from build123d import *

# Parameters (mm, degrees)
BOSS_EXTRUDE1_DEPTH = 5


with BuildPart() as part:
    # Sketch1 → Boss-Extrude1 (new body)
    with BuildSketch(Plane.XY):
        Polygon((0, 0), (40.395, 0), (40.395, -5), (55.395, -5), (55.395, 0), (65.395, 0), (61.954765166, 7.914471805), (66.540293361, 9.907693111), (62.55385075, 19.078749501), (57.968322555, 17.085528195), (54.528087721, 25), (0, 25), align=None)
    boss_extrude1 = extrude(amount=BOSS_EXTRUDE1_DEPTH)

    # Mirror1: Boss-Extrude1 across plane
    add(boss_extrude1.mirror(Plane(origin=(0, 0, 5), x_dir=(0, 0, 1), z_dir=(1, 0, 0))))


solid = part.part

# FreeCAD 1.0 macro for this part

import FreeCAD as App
import Part
import Sketcher

doc = App.newDocument("Part")
body = doc.addObject("PartDesign::Body", "Body")

sketch1 = body.newObject("Sketcher::SketchObject", "Sketch")
sketch1.AttachmentSupport = (doc.getObject("XY_Plane"), [""])
sketch1.MapMode = "FlatFace"
sketch1.addGeometry([
    Part.LineSegment(App.Vector(0, 0, 0), App.Vector(40, 0, 0)),
    Part.LineSegment(App.Vector(40, 0, 0), App.Vector(40, -5, 0)),
    Part.LineSegment(App.Vector(40, -5, 0), App.Vector(55, -5, 0)),
    Part.LineSegment(App.Vector(55, -5, 0), App.Vector(55, 0, 0)),
    Part.LineSegment(App.Vector(55, 0, 0), App.Vector(65, 0, 0)),
    Part.LineSegment(App.Vector(65, 0, 0), App.Vector(62, 8, 0)),
    Part.LineSegment(App.Vector(62, 8, 0), App.Vector(67, 10, 0)),
    Part.LineSegment(App.Vector(67, 10, 0), App.Vector(63, 19, 0)),
    Part.LineSegment(App.Vector(63, 19, 0), App.Vector(58, 17, 0)),
    Part.LineSegment(App.Vector(58, 17, 0), App.Vector(55, 25, 0)),
    Part.LineSegment(App.Vector(55, 25, 0), App.Vector(0, 25, 0)),
    Part.LineSegment(App.Vector(0, 25, 0), App.Vector(0, 0, 0)),
], False)
sketch1.addConstraint([
    Sketcher.Constraint("Coincident", 0, 2, 1, 1),
    Sketcher.Constraint("Coincident", 1, 2, 2, 1),
    Sketcher.Constraint("Coincident", 2, 2, 3, 1),
    Sketcher.Constraint("Coincident", 3, 2, 4, 1),
    Sketcher.Constraint("Coincident", 4, 2, 5, 1),
    Sketcher.Constraint("Coincident", 5, 2, 6, 1),
    Sketcher.Constraint("Coincident", 6, 2, 7, 1),
    Sketcher.Constraint("Coincident", 7, 2, 8, 1),
    Sketcher.Constraint("Coincident", 8, 2, 9, 1),
    Sketcher.Constraint("Coincident", 9, 2, 10, 1),
    Sketcher.Constraint("Coincident", 10, 2, 11, 1),
    Sketcher.Constraint("Coincident", 11, 2, 0, 1),
    Sketcher.Constraint("Horizontal", 0),
    Sketcher.Constraint("Vertical", 1),
    Sketcher.Constraint("Horizontal", 2),
    Sketcher.Constraint("Vertical", 3),
    Sketcher.Constraint("Horizontal", 4),
    Sketcher.Constraint("Horizontal", 10),
    Sketcher.Constraint("Vertical", 11),
    Sketcher.Constraint("Coincident", 11, 2, -1, 1),
    Sketcher.Constraint("PointOnObject", 3, 2, -1),
    Sketcher.Constraint("Perpendicular", 5, 6),
    Sketcher.Constraint("Perpendicular", 6, 7),
    Sketcher.Constraint("Perpendicular", 7, 8),
    Sketcher.Constraint("Perpendicular", 8, 9),
    Sketcher.Constraint("Equal", 6, 8),
    Sketcher.Constraint("Equal", 5, 9),
    Sketcher.Constraint("DistanceX", 2, 1, 2, 2, 15.0),
    Sketcher.Constraint("DistanceX", 4, 1, 4, 2, 10.0),
    Sketcher.Constraint("DistanceY", 1, 2, 1, 1, 5.0),
    Sketcher.Constraint("DistanceY", 11, 2, 11, 1, 25.0),
    Sketcher.Constraint("Distance", 6, 5.0),
    Sketcher.Constraint("Distance", 7, 10.0),
    Sketcher.Constraint("DistanceX", 0, 1, 0, 2, 40.395),
    Sketcher.Constraint("DistanceX", 10, 2, 10, 1, 54.528088),
])
pad1 = body.newObject("PartDesign::Pad", "Pad")
pad1.Profile = sketch1
pad1.Length = 5
doc.recompute()

mirrored = body.newObject("PartDesign::Mirrored", "Mirrored")
mirrored.Originals = [pad1]
mirrored.MirrorPlane = (doc.getObject("YZ_Plane"), [""])
body.Tip = mirrored

doc.recompute()
